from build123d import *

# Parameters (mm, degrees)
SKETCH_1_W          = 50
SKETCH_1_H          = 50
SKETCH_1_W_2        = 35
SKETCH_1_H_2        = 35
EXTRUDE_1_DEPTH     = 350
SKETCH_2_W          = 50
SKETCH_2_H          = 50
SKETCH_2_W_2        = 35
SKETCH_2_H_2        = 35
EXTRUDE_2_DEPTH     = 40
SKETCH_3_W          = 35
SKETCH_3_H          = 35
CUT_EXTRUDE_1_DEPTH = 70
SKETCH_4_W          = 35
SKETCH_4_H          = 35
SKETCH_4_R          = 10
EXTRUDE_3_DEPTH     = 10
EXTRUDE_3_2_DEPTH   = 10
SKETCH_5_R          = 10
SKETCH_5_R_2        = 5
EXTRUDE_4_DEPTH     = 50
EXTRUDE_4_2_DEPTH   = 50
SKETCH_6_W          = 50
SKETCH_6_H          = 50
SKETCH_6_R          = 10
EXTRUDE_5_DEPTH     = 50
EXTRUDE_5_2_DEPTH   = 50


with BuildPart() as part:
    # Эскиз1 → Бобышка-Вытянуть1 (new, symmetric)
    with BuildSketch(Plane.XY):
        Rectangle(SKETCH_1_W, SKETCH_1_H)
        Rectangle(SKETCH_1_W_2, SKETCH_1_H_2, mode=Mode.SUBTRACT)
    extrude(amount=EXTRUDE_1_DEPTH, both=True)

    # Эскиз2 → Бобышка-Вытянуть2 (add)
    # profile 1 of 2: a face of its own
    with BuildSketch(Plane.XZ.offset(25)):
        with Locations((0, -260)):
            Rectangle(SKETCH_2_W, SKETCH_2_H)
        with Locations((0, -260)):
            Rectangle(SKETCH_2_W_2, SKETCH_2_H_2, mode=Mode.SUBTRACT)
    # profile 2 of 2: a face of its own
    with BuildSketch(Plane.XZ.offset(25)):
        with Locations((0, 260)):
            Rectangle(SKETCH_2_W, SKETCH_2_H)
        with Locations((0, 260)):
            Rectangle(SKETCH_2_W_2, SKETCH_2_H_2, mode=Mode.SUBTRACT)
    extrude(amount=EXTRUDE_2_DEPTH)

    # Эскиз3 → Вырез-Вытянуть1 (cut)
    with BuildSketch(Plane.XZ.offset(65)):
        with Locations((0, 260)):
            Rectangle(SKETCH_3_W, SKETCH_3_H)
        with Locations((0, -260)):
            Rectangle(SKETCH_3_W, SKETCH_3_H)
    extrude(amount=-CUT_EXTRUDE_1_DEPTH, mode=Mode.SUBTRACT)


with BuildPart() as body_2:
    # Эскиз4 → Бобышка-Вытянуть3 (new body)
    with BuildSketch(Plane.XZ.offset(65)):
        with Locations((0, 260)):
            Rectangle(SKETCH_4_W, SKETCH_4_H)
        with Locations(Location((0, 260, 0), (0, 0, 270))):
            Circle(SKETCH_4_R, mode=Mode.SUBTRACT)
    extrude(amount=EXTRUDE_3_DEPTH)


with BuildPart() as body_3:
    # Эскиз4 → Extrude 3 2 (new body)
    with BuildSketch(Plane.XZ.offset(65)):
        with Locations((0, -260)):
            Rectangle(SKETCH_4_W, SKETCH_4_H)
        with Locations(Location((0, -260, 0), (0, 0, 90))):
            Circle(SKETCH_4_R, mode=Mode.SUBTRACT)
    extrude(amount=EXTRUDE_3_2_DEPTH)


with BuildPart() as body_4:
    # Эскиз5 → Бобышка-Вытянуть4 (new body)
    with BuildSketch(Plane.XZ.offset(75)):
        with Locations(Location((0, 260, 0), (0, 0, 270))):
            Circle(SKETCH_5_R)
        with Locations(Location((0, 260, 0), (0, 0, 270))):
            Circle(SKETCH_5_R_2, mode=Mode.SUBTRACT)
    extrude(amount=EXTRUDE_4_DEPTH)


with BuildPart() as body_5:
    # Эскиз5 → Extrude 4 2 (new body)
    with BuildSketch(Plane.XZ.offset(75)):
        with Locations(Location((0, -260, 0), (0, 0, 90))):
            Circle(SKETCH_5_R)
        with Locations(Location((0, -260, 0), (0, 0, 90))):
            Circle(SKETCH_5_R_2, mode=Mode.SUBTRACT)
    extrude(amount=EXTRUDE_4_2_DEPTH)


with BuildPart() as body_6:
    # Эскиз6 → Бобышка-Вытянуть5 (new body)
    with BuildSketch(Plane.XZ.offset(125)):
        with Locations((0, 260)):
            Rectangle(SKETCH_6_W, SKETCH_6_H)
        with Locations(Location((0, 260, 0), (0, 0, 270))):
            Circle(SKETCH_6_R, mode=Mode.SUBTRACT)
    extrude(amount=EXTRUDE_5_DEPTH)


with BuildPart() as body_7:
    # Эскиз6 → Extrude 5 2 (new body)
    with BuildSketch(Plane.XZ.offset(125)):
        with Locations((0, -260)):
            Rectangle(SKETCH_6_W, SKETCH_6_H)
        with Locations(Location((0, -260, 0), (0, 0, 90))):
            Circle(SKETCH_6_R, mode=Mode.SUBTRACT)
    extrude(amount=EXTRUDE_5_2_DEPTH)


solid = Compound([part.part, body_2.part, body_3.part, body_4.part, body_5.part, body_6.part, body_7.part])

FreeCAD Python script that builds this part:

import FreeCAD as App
import Part
import Sketcher
Q = App.Units.Quantity

doc = App.newDocument("Part")
body = doc.addObject("PartDesign::Body", "Body")

sketch1 = body.newObject("Sketcher::SketchObject", "Sketch")
sketch1.AttachmentSupport = (doc.getObject("XY_Plane"), [""])
sketch1.MapMode = "FlatFace"
sketch1.addGeometry(Part.LineSegment(App.Vector(-25, 25, 0), App.Vector(-25, -25, 0)), False)
sketch1.addGeometry(Part.LineSegment(App.Vector(-25, -25, 0), App.Vector(25, -25, 0)), False)
sketch1.addGeometry(Part.LineSegment(App.Vector(25, -25, 0), App.Vector(25, 25, 0)), False)
sketch1.addGeometry(Part.LineSegment(App.Vector(25, 25, 0), App.Vector(-25, 25, 0)), False)
sketch1.addGeometry(Part.LineSegment(App.Vector(18, -18, 0), App.Vector(-18, -18, 0)), False)
sketch1.addGeometry(Part.LineSegment(App.Vector(-18, -18, 0), App.Vector(-18, 18, 0)), False)
sketch1.addGeometry(Part.LineSegment(App.Vector(-18, 18, 0), App.Vector(18, 18, 0)), False)
sketch1.addGeometry(Part.LineSegment(App.Vector(18, 18, 0), App.Vector(18, -18, 0)), False)
sketch1.addConstraint(Sketcher.Constraint("Coincident", 0, 2, 1, 1))
sketch1.addConstraint(Sketcher.Constraint("Coincident", 1, 2, 2, 1))
sketch1.addConstraint(Sketcher.Constraint("Coincident", 2, 2, 3, 1))
sketch1.addConstraint(Sketcher.Constraint("Coincident", 3, 2, 0, 1))
sketch1.addConstraint(Sketcher.Constraint("Coincident", 4, 2, 5, 1))
sketch1.addConstraint(Sketcher.Constraint("Coincident", 5, 2, 6, 1))
sketch1.addConstraint(Sketcher.Constraint("Coincident", 6, 2, 7, 1))
sketch1.addConstraint(Sketcher.Constraint("Coincident", 7, 2, 4, 1))
sketch1.addConstraint(Sketcher.Constraint("Vertical", 0))
sketch1.addConstraint(Sketcher.Constraint("Horizontal", 1))
sketch1.addConstraint(Sketcher.Constraint("Vertical", 2))
sketch1.addConstraint(Sketcher.Constraint("Horizontal", 3))
sketch1.addConstraint(Sketcher.Constraint("Horizontal", 4))
sketch1.addConstraint(Sketcher.Constraint("Vertical", 5))
sketch1.addConstraint(Sketcher.Constraint("Horizontal", 6))
sketch1.addConstraint(Sketcher.Constraint("Vertical", 7))
sketch1.addConstraint(Sketcher.Constraint("Symmetric", 0, 2, 2, 2, -1, 1))
sketch1.addConstraint(Sketcher.Constraint("Symmetric", 4, 2, 6, 2, -1, 1))
sketch1.addConstraint(Sketcher.Constraint("Equal", 3, 0))
sketch1.addConstraint(Sketcher.Constraint("Equal", 6, 5))
sketch1.addConstraint(Sketcher.Constraint("DistanceX", 1, 1, 1, 2, Q("50 mm")))
sketch1.addConstraint(Sketcher.Constraint("DistanceX", 4, 2, 4, 1, Q("35 mm")))
pad1 = body.newObject("PartDesign::Pad", "Pad")
pad1.Profile = sketch1
pad1.Length = 700
pad1.Midplane = True

sketch2 = body.newObject("Sketcher::SketchObject", "Sketch001")
sketch2.AttachmentSupport = (doc.getObject("XZ_Plane"), [""])
sketch2.MapMode = "FlatFace"
sketch2.AttachmentOffset = App.Placement(App.Vector(0, 0, 25), App.Rotation())
sketch2.addGeometry(Part.LineSegment(App.Vector(-25, -235, 0), App.Vector(-25, -285, 0)), False)
sketch2.addGeometry(Part.LineSegment(App.Vector(-25, -285, 0), App.Vector(25, -285, 0)), False)
sketch2.addGeometry(Part.LineSegment(App.Vector(25, -285, 0), App.Vector(25, -235, 0)), False)
sketch2.addGeometry(Part.LineSegment(App.Vector(25, -235, 0), App.Vector(-25, -235, 0)), False)
sketch2.addGeometry(Part.LineSegment(App.Vector(18, -278, 0), App.Vector(-18, -278, 0)), False)
sketch2.addGeometry(Part.LineSegment(App.Vector(-18, -278, 0), App.Vector(-18, -242, 0)), False)
sketch2.addGeometry(Part.LineSegment(App.Vector(-18, -242, 0), App.Vector(18, -242, 0)), False)
sketch2.addGeometry(Part.LineSegment(App.Vector(18, -242, 0), App.Vector(18, -278, 0)), False)
sketch2.addGeometry(Part.LineSegment(App.Vector(-25, 285, 0), App.Vector(-25, 235, 0)), False)
sketch2.addGeometry(Part.LineSegment(App.Vector(-25, 235, 0), App.Vector(25, 235, 0)), False)
sketch2.addGeometry(Part.LineSegment(App.Vector(25, 235, 0), App.Vector(25, 285, 0)), False)
sketch2.addGeometry(Part.LineSegment(App.Vector(25, 285, 0), App.Vector(-25, 285, 0)), False)
sketch2.addGeometry(Part.LineSegment(App.Vector(18, 242, 0), App.Vector(-18, 242, 0)), False)
sketch2.addGeometry(Part.LineSegment(App.Vector(-18, 242, 0), App.Vector(-18, 278, 0)), False)
sketch2.addGeometry(Part.LineSegment(App.Vector(-18, 278, 0), App.Vector(18, 278, 0)), False)
sketch2.addGeometry(Part.LineSegment(App.Vector(18, 278, 0), App.Vector(18, 242, 0)), False)
sketch2.addConstraint(Sketcher.Constraint("Coincident", 0, 2, 1, 1))
sketch2.addConstraint(Sketcher.Constraint("Coincident", 1, 2, 2, 1))
sketch2.addConstraint(Sketcher.Constraint("Coincident", 2, 2, 3, 1))
sketch2.addConstraint(Sketcher.Constraint("Coincident", 3, 2, 0, 1))
sketch2.addConstraint(Sketcher.Constraint("Coincident", 4, 2, 5, 1))
sketch2.addConstraint(Sketcher.Constraint("Coincident", 5, 2, 6, 1))
sketch2.addConstraint(Sketcher.Constraint("Coincident", 6, 2, 7, 1))
sketch2.addConstraint(Sketcher.Constraint("Coincident", 7, 2, 4, 1))
sketch2.addConstraint(Sketcher.Constraint("Coincident", 8, 2, 9, 1))
sketch2.addConstraint(Sketcher.Constraint("Coincident", 9, 2, 10, 1))
sketch2.addConstraint(Sketcher.Constraint("Coincident", 10, 2, 11, 1))
sketch2.addConstraint(Sketcher.Constraint("Coincident", 11, 2, 8, 1))
sketch2.addConstraint(Sketcher.Constraint("Coincident", 12, 2, 13, 1))
sketch2.addConstraint(Sketcher.Constraint("Coincident", 13, 2, 14, 1))
sketch2.addConstraint(Sketcher.Constraint("Coincident", 14, 2, 15, 1))
sketch2.addConstraint(Sketcher.Constraint("Coincident", 15, 2, 12, 1))
sketch2.addConstraint(Sketcher.Constraint("Vertical", 0))
sketch2.addConstraint(Sketcher.Constraint("Horizontal", 1))
sketch2.addConstraint(Sketcher.Constraint("Vertical", 2))
sketch2.addConstraint(Sketcher.Constraint("Horizontal", 3))
sketch2.addConstraint(Sketcher.Constraint("Horizontal", 4))
sketch2.addConstraint(Sketcher.Constraint("Vertical", 5))
sketch2.addConstraint(Sketcher.Constraint("Horizontal", 6))
sketch2.addConstraint(Sketcher.Constraint("Vertical", 7))
sketch2.addConstraint(Sketcher.Constraint("Vertical", 8))
sketch2.addConstraint(Sketcher.Constraint("Horizontal", 9))
sketch2.addConstraint(Sketcher.Constraint("Vertical", 10))
sketch2.addConstraint(Sketcher.Constraint("Horizontal", 11))
sketch2.addConstraint(Sketcher.Constraint("Horizontal", 12))
sketch2.addConstraint(Sketcher.Constraint("Vertical", 13))
sketch2.addConstraint(Sketcher.Constraint("Horizontal", 14))
sketch2.addConstraint(Sketcher.Constraint("Vertical", 15))
sketch2.addConstraint(Sketcher.Constraint("Symmetric", 2, 2, 8, 2, -1, 1))
sketch2.addConstraint(Sketcher.Constraint("Symmetric", 0, 2, 10, 2, -1, 1))
sketch2.addConstraint(Sketcher.Constraint("Symmetric", 6, 2, 12, 2, -1, 1))
sketch2.addConstraint(Sketcher.Constraint("Symmetric", 4, 2, 14, 2, -1, 1))
sketch2.addConstraint(Sketcher.Constraint("Vertical", 3, 2, 8, 2))
sketch2.addConstraint(Sketcher.Constraint("Vertical", 5, 2, 12, 2))
sketch2.addConstraint(Sketcher.Constraint("Equal", 11, 0))
sketch2.addConstraint(Sketcher.Constraint("Equal", 14, 5))
sketch2.addConstraint(Sketcher.Constraint("DistanceX", 1, 1, 1, 2, Q("50 mm")))
sketch2.addConstraint(Sketcher.Constraint("DistanceX", 4, 2, 4, 1, Q("35 mm")))
sketch2.addConstraint(Sketcher.Constraint("DistanceY", 0, 2, -1, 1, Q("285 mm")))
sketch2.addConstraint(Sketcher.Constraint("DistanceY", 4, 2, -1, 1, Q("277.5 mm")))
pad2 = body.newObject("PartDesign::Pad", "Pad001")
pad2.Profile = sketch2
pad2.Length = 40

sketch3 = body.newObject("Sketcher::SketchObject", "Sketch002")
sketch3.AttachmentSupport = (doc.getObject("XZ_Plane"), [""])
sketch3.MapMode = "FlatFace"
sketch3.AttachmentOffset = App.Placement(App.Vector(0, 0, 65), App.Rotation())
sketch3.addGeometry(Part.LineSegment(App.Vector(-18, 278, 0), App.Vector(-18, 242, 0)), False)
sketch3.addGeometry(Part.LineSegment(App.Vector(-18, 242, 0), App.Vector(18, 242, 0)), False)
sketch3.addGeometry(Part.LineSegment(App.Vector(18, 242, 0), App.Vector(18, 278, 0)), False)
sketch3.addGeometry(Part.LineSegment(App.Vector(18, 278, 0), App.Vector(-18, 278, 0)), False)
sketch3.addGeometry(Part.LineSegment(App.Vector(-18, -242, 0), App.Vector(-18, -278, 0)), False)
sketch3.addGeometry(Part.LineSegment(App.Vector(-18, -278, 0), App.Vector(18, -278, 0)), False)
sketch3.addGeometry(Part.LineSegment(App.Vector(18, -278, 0), App.Vector(18, -242, 0)), False)
sketch3.addGeometry(Part.LineSegment(App.Vector(18, -242, 0), App.Vector(-18, -242, 0)), False)
sketch3.addConstraint(Sketcher.Constraint("Coincident", 0, 2, 1, 1))
sketch3.addConstraint(Sketcher.Constraint("Coincident", 1, 2, 2, 1))
sketch3.addConstraint(Sketcher.Constraint("Coincident", 2, 2, 3, 1))
sketch3.addConstraint(Sketcher.Constraint("Coincident", 3, 2, 0, 1))
sketch3.addConstraint(Sketcher.Constraint("Coincident", 4, 2, 5, 1))
sketch3.addConstraint(Sketcher.Constraint("Coincident", 5, 2, 6, 1))
sketch3.addConstraint(Sketcher.Constraint("Coincident", 6, 2, 7, 1))
sketch3.addConstraint(Sketcher.Constraint("Coincident", 7, 2, 4, 1))
sketch3.addConstraint(Sketcher.Constraint("Vertical", 0))
sketch3.addConstraint(Sketcher.Constraint("Horizontal", 1))
sketch3.addConstraint(Sketcher.Constraint("Vertical", 2))
sketch3.addConstraint(Sketcher.Constraint("Horizontal", 3))
sketch3.addConstraint(Sketcher.Constraint("Vertical", 4))
sketch3.addConstraint(Sketcher.Constraint("Horizontal", 5))
sketch3.addConstraint(Sketcher.Constraint("Vertical", 6))
sketch3.addConstraint(Sketcher.Constraint("Horizontal", 7))
sketch3.addConstraint(Sketcher.Constraint("Symmetric", 2, 2, 4, 2, -1, 1))
sketch3.addConstraint(Sketcher.Constraint("Symmetric", 0, 2, 6, 2, -1, 1))
sketch3.addConstraint(Sketcher.Constraint("Vertical", 3, 2, 4, 2))
sketch3.addConstraint(Sketcher.Constraint("Equal", 7, 0))
sketch3.addConstraint(Sketcher.Constraint("DistanceX", 1, 1, 1, 2, Q("35 mm")))
sketch3.addConstraint(Sketcher.Constraint("DistanceY", 4, 2, 0, 2, Q("520 mm")))
pocket1 = body.newObject("PartDesign::Pocket", "Pocket")
pocket1.Profile = sketch3
pocket1.Length = 70
body2 = doc.addObject("PartDesign::Body", "Body001")

sketch4 = body2.newObject("Sketcher::SketchObject", "Sketch003")
sketch4.AttachmentSupport = (doc.getObject("XZ_Plane001"), [""])
sketch4.MapMode = "FlatFace"
sketch4.AttachmentOffset = App.Placement(App.Vector(0, 0, 65), App.Rotation())
sketch4.addGeometry(Part.LineSegment(App.Vector(-18, 278, 0), App.Vector(-18, 242, 0)), False)
sketch4.addGeometry(Part.LineSegment(App.Vector(-18, 242, 0), App.Vector(18, 242, 0)), False)
sketch4.addGeometry(Part.LineSegment(App.Vector(18, 242, 0), App.Vector(18, 278, 0)), False)
sketch4.addGeometry(Part.LineSegment(App.Vector(18, 278, 0), App.Vector(-18, 278, 0)), False)
sketch4.addGeometry(Part.Circle(App.Vector(0, 260, 0), App.Vector(0, 0, 1), 10), False)
sketch4.addConstraint(Sketcher.Constraint("Coincident", 0, 2, 1, 1))
sketch4.addConstraint(Sketcher.Constraint("Coincident", 1, 2, 2, 1))
sketch4.addConstraint(Sketcher.Constraint("Coincident", 2, 2, 3, 1))
sketch4.addConstraint(Sketcher.Constraint("Coincident", 3, 2, 0, 1))
sketch4.addConstraint(Sketcher.Constraint("Vertical", 0))
sketch4.addConstraint(Sketcher.Constraint("Horizontal", 1))
sketch4.addConstraint(Sketcher.Constraint("Vertical", 2))
sketch4.addConstraint(Sketcher.Constraint("Horizontal", 3))
sketch4.addConstraint(Sketcher.Constraint("PointOnObject", 4, 3, -2))
sketch4.addConstraint(Sketcher.Constraint("Equal", 3, 0))
sketch4.addConstraint(Sketcher.Constraint("Diameter", 4, Q("20 mm")))
sketch4.addConstraint(Sketcher.Constraint("DistanceX", 1, 1, 1, 2, Q("35 mm")))
sketch4.addConstraint(Sketcher.Constraint("DistanceY", -1, 1, 4, 3, Q("260 mm")))
sketch4.addConstraint(Sketcher.Constraint("DistanceX", 0, 2, -1, 1, Q("17.5 mm")))
sketch4.addConstraint(Sketcher.Constraint("DistanceY", -1, 1, 0, 2, Q("242.5 mm")))
pad3 = body2.newObject("PartDesign::Pad", "Pad002")
pad3.Profile = sketch4
pad3.Length = 10
body3 = doc.addObject("PartDesign::Body", "Body002")

sketch5 = body3.newObject("Sketcher::SketchObject", "Sketch004")
sketch5.AttachmentSupport = (doc.getObject("XZ_Plane002"), [""])
sketch5.MapMode = "FlatFace"
sketch5.AttachmentOffset = App.Placement(App.Vector(0, 0, 65), App.Rotation())
sketch5.addGeometry(Part.LineSegment(App.Vector(-18, -242, 0), App.Vector(-18, -278, 0)), False)
sketch5.addGeometry(Part.LineSegment(App.Vector(-18, -278, 0), App.Vector(18, -278, 0)), False)
sketch5.addGeometry(Part.LineSegment(App.Vector(18, -278, 0), App.Vector(18, -242, 0)), False)
sketch5.addGeometry(Part.LineSegment(App.Vector(18, -242, 0), App.Vector(-18, -242, 0)), False)
sketch5.addGeometry(Part.Circle(App.Vector(0, -260, 0), App.Vector(0, 0, 1), 10), False)
sketch5.addConstraint(Sketcher.Constraint("Coincident", 0, 2, 1, 1))
sketch5.addConstraint(Sketcher.Constraint("Coincident", 1, 2, 2, 1))
sketch5.addConstraint(Sketcher.Constraint("Coincident", 2, 2, 3, 1))
sketch5.addConstraint(Sketcher.Constraint("Coincident", 3, 2, 0, 1))
sketch5.addConstraint(Sketcher.Constraint("Vertical", 0))
sketch5.addConstraint(Sketcher.Constraint("Horizontal", 1))
sketch5.addConstraint(Sketcher.Constraint("Vertical", 2))
sketch5.addConstraint(Sketcher.Constraint("Horizontal", 3))
sketch5.addConstraint(Sketcher.Constraint("PointOnObject", 4, 3, -2))
sketch5.addConstraint(Sketcher.Constraint("Equal", 3, 0))
sketch5.addConstraint(Sketcher.Constraint("Diameter", 4, Q("20 mm")))
sketch5.addConstraint(Sketcher.Constraint("DistanceX", 1, 1, 1, 2, Q("35 mm")))
sketch5.addConstraint(Sketcher.Constraint("DistanceY", 4, 3, -1, 1, Q("260 mm")))
sketch5.addConstraint(Sketcher.Constraint("DistanceX", 0, 2, -1, 1, Q("17.5 mm")))
sketch5.addConstraint(Sketcher.Constraint("DistanceY", 0, 2, -1, 1, Q("277.5 mm")))
pad4 = body3.newObject("PartDesign::Pad", "Pad003")
pad4.Profile = sketch5
pad4.Length = 10
body4 = doc.addObject("PartDesign::Body", "Body003")

sketch6 = body4.newObject("Sketcher::SketchObject", "Sketch005")
sketch6.AttachmentSupport = (doc.getObject("XZ_Plane003"), [""])
sketch6.MapMode = "FlatFace"
sketch6.AttachmentOffset = App.Placement(App.Vector(0, 0, 75), App.Rotation())
sketch6.addGeometry(Part.Circle(App.Vector(0, 260, 0), App.Vector(0, 0, 1), 10), False)
sketch6.addGeometry(Part.Circle(App.Vector(0, 260, 0), App.Vector(0, 0, 1), 5), False)
sketch6.addConstraint(Sketcher.Constraint("Coincident", 1, 3, 0, 3))
sketch6.addConstraint(Sketcher.Constraint("PointOnObject", 0, 3, -2))
sketch6.addConstraint(Sketcher.Constraint("Diameter", 0, Q("20 mm")))
sketch6.addConstraint(Sketcher.Constraint("Diameter", 1, Q("10 mm")))
sketch6.addConstraint(Sketcher.Constraint("DistanceY", -1, 1, 0, 3, Q("260 mm")))
pad5 = body4.newObject("PartDesign::Pad", "Pad004")
pad5.Profile = sketch6
pad5.Length = 50
body5 = doc.addObject("PartDesign::Body", "Body004")

sketch7 = body5.newObject("Sketcher::SketchObject", "Sketch006")
sketch7.AttachmentSupport = (doc.getObject("XZ_Plane004"), [""])
sketch7.MapMode = "FlatFace"
sketch7.AttachmentOffset = App.Placement(App.Vector(0, 0, 75), App.Rotation())
sketch7.addGeometry(Part.Circle(App.Vector(0, -260, 0), App.Vector(0, 0, 1), 10), False)
sketch7.addGeometry(Part.Circle(App.Vector(0, -260, 0), App.Vector(0, 0, 1), 5), False)
sketch7.addConstraint(Sketcher.Constraint("Coincident", 1, 3, 0, 3))
sketch7.addConstraint(Sketcher.Constraint("PointOnObject", 0, 3, -2))
sketch7.addConstraint(Sketcher.Constraint("Diameter", 0, Q("20 mm")))
sketch7.addConstraint(Sketcher.Constraint("Diameter", 1, Q("10 mm")))
sketch7.addConstraint(Sketcher.Constraint("DistanceY", 0, 3, -1, 1, Q("260 mm")))
pad6 = body5.newObject("PartDesign::Pad", "Pad005")
pad6.Profile = sketch7
pad6.Length = 50
body6 = doc.addObject("PartDesign::Body", "Body005")

sketch8 = body6.newObject("Sketcher::SketchObject", "Sketch007")
sketch8.AttachmentSupport = (doc.getObject("XZ_Plane005"), [""])
sketch8.MapMode = "FlatFace"
sketch8.AttachmentOffset = App.Placement(App.Vector(0, 0, 125), App.Rotation())
sketch8.addGeometry(Part.LineSegment(App.Vector(-25, 285, 0), App.Vector(-25, 235, 0)), False)
sketch8.addGeometry(Part.LineSegment(App.Vector(-25, 235, 0), App.Vector(25, 235, 0)), False)
sketch8.addGeometry(Part.LineSegment(App.Vector(25, 235, 0), App.Vector(25, 285, 0)), False)
sketch8.addGeometry(Part.LineSegment(App.Vector(25, 285, 0), App.Vector(-25, 285, 0)), False)
sketch8.addGeometry(Part.Circle(App.Vector(0, 260, 0), App.Vector(0, 0, 1), 10), False)
sketch8.addConstraint(Sketcher.Constraint("Coincident", 0, 2, 1, 1))
sketch8.addConstraint(Sketcher.Constraint("Coincident", 1, 2, 2, 1))
sketch8.addConstraint(Sketcher.Constraint("Coincident", 2, 2, 3, 1))
sketch8.addConstraint(Sketcher.Constraint("Coincident", 3, 2, 0, 1))
sketch8.addConstraint(Sketcher.Constraint("Vertical", 0))
sketch8.addConstraint(Sketcher.Constraint("Horizontal", 1))
sketch8.addConstraint(Sketcher.Constraint("Vertical", 2))
sketch8.addConstraint(Sketcher.Constraint("Horizontal", 3))
sketch8.addConstraint(Sketcher.Constraint("PointOnObject", 4, 3, -2))
sketch8.addConstraint(Sketcher.Constraint("Equal", 3, 0))
sketch8.addConstraint(Sketcher.Constraint("Diameter", 4, Q("20 mm")))
sketch8.addConstraint(Sketcher.Constraint("DistanceX", 1, 1, 1, 2, Q("50 mm")))
sketch8.addConstraint(Sketcher.Constraint("DistanceY", -1, 1, 4, 3, Q("260 mm")))
sketch8.addConstraint(Sketcher.Constraint("DistanceX", 0, 2, -1, 1, Q("25 mm")))
sketch8.addConstraint(Sketcher.Constraint("DistanceY", -1, 1, 0, 2, Q("235 mm")))
pad7 = body6.newObject("PartDesign::Pad", "Pad006")
pad7.Profile = sketch8
pad7.Length = 50
body7 = doc.addObject("PartDesign::Body", "Body006")

sketch9 = body7.newObject("Sketcher::SketchObject", "Sketch008")
sketch9.AttachmentSupport = (doc.getObject("XZ_Plane006"), [""])
sketch9.MapMode = "FlatFace"
sketch9.AttachmentOffset = App.Placement(App.Vector(0, 0, 125), App.Rotation())
sketch9.addGeometry(Part.LineSegment(App.Vector(-25, -235, 0), App.Vector(-25, -285, 0)), False)
sketch9.addGeometry(Part.LineSegment(App.Vector(-25, -285, 0), App.Vector(25, -285, 0)), False)
sketch9.addGeometry(Part.LineSegment(App.Vector(25, -285, 0), App.Vector(25, -235, 0)), False)
sketch9.addGeometry(Part.LineSegment(App.Vector(25, -235, 0), App.Vector(-25, -235, 0)), False)
sketch9.addGeometry(Part.Circle(App.Vector(0, -260, 0), App.Vector(0, 0, 1), 10), False)
sketch9.addConstraint(Sketcher.Constraint("Coincident", 0, 2, 1, 1))
sketch9.addConstraint(Sketcher.Constraint("Coincident", 1, 2, 2, 1))
sketch9.addConstraint(Sketcher.Constraint("Coincident", 2, 2, 3, 1))
sketch9.addConstraint(Sketcher.Constraint("Coincident", 3, 2, 0, 1))
sketch9.addConstraint(Sketcher.Constraint("Vertical", 0))
sketch9.addConstraint(Sketcher.Constraint("Horizontal", 1))
sketch9.addConstraint(Sketcher.Constraint("Vertical", 2))
sketch9.addConstraint(Sketcher.Constraint("Horizontal", 3))
sketch9.addConstraint(Sketcher.Constraint("PointOnObject", 4, 3, -2))
sketch9.addConstraint(Sketcher.Constraint("Equal", 3, 0))
sketch9.addConstraint(Sketcher.Constraint("Diameter", 4, Q("20 mm")))
sketch9.addConstraint(Sketcher.Constraint("DistanceX", 1, 1, 1, 2, Q("50 mm")))
sketch9.addConstraint(Sketcher.Constraint("DistanceY", 4, 3, -1, 1, Q("260 mm")))
sketch9.addConstraint(Sketcher.Constraint("DistanceX", 0, 2, -1, 1, Q("25 mm")))
sketch9.addConstraint(Sketcher.Constraint("DistanceY", 0, 2, -1, 1, Q("285 mm")))
pad8 = body7.newObject("PartDesign::Pad", "Pad007")
pad8.Profile = sketch9
pad8.Length = 50

doc.recompute()
